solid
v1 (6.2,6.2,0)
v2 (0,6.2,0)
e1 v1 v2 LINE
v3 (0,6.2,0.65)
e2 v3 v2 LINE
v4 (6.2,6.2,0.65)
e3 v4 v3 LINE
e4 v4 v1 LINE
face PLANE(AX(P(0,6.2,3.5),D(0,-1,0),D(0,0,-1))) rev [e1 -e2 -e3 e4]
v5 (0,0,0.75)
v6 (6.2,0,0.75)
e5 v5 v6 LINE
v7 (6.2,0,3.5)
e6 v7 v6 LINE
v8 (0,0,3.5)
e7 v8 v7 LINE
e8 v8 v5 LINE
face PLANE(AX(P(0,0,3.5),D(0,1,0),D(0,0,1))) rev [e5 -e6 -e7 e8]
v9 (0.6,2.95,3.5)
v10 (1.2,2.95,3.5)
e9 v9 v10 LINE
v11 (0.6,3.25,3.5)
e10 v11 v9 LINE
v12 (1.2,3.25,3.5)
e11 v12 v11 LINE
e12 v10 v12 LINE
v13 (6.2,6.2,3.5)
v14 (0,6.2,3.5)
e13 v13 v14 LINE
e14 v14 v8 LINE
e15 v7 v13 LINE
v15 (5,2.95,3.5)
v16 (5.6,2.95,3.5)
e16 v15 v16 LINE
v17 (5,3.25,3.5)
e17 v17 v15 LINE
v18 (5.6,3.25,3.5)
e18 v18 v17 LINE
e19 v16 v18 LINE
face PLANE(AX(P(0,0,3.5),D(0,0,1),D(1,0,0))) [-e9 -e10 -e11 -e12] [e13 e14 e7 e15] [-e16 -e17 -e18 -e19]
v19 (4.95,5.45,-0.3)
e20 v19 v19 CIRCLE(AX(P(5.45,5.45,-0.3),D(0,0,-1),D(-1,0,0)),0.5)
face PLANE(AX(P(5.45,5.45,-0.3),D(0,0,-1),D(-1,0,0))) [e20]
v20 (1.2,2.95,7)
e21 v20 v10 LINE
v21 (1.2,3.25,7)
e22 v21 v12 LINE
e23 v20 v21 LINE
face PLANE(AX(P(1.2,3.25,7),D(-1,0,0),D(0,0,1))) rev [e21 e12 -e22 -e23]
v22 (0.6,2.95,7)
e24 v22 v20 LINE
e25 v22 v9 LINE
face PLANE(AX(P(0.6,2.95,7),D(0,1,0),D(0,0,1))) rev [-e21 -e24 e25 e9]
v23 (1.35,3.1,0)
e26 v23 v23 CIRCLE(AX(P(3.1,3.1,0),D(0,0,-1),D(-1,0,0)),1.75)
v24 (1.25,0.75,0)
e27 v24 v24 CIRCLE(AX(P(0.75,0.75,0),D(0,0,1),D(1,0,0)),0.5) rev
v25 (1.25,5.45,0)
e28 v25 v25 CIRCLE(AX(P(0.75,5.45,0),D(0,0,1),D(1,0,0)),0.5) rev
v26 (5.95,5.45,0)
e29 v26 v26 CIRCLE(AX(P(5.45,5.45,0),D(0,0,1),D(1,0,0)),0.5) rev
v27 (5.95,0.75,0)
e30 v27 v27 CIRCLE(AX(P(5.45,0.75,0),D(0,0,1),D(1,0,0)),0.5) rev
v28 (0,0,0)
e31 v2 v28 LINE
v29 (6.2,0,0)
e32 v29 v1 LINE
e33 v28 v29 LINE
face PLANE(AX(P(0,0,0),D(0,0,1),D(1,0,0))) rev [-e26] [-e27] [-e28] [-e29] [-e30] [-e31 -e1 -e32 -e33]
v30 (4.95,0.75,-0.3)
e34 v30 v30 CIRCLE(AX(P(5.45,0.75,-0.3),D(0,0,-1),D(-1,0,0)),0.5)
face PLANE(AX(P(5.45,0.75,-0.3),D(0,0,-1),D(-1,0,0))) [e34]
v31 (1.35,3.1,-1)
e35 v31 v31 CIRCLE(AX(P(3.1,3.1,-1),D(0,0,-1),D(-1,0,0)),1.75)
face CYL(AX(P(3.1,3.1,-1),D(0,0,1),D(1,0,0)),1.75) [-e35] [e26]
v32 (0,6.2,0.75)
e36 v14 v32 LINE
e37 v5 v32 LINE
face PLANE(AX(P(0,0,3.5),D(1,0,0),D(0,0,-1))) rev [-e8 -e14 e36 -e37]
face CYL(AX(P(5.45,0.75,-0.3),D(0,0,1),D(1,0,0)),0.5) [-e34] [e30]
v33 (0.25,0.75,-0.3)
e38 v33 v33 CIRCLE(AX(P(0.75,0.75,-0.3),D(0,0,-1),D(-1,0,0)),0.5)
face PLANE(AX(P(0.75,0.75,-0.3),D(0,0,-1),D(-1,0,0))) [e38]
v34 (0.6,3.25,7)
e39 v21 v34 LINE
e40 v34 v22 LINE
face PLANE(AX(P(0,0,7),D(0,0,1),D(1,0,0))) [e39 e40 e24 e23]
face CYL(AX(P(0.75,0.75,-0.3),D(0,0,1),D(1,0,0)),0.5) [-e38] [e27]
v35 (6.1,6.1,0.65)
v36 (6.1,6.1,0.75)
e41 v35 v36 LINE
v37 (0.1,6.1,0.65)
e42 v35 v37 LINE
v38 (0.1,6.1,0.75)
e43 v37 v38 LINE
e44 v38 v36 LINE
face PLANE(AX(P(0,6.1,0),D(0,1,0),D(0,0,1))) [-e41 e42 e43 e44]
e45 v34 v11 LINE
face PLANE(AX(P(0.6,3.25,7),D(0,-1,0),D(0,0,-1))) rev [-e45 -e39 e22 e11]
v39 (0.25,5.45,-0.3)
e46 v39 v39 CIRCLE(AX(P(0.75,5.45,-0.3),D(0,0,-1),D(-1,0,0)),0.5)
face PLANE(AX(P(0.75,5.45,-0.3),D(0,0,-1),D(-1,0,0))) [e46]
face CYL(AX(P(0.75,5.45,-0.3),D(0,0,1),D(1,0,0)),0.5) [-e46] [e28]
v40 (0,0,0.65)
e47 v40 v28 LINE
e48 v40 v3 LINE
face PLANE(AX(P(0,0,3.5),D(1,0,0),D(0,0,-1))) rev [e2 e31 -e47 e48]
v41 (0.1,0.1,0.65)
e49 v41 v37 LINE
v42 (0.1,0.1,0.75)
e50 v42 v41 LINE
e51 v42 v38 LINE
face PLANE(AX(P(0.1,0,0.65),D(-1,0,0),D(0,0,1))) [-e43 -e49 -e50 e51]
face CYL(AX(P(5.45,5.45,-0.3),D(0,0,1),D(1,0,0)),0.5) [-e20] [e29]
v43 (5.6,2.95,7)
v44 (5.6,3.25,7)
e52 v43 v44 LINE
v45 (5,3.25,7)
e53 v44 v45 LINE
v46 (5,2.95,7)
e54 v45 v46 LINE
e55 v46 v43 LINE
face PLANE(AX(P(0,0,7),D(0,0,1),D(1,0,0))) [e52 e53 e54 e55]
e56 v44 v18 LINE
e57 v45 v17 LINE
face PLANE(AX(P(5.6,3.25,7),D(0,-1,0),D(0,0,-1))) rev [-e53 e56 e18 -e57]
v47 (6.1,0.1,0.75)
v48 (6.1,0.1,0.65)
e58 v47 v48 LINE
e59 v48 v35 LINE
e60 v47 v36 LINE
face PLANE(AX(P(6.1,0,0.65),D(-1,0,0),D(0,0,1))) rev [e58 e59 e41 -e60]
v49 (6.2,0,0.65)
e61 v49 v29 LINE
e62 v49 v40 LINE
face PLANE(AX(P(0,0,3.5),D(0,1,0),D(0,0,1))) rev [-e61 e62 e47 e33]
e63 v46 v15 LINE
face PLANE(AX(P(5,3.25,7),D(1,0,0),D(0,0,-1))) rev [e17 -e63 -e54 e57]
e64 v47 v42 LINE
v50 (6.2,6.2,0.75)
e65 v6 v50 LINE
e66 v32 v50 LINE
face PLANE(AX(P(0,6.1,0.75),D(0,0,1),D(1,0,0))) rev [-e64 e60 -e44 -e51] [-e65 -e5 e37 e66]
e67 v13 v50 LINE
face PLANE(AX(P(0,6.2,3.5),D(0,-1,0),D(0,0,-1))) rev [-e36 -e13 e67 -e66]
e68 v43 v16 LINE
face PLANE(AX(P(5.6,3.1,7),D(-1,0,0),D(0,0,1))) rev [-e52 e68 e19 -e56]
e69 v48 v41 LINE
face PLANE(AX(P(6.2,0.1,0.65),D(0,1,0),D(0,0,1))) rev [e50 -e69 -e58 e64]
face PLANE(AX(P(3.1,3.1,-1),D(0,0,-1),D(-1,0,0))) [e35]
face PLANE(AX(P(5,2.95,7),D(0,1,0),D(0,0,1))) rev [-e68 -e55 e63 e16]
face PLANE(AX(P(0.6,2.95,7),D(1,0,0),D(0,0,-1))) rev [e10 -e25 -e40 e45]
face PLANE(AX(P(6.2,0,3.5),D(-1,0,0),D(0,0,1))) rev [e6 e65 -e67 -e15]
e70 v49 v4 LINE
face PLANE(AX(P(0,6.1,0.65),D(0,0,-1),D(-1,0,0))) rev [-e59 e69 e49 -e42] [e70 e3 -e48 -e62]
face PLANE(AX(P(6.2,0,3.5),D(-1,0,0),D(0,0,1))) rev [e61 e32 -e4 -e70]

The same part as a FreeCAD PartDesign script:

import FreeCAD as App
import Part
import Sketcher


def add_polygon(sketch, points):
    """Adds a closed chain of lines whose ends are joined by coincident constraints."""
    first, n = sketch.GeometryCount, len(points)
    for a, b in zip(points, points[1:] + points[:1]):
        sketch.addGeometry(Part.LineSegment(App.Vector(*a, 0), App.Vector(*b, 0)), False)
    for i in range(n):
        sketch.addConstraint(Sketcher.Constraint("Coincident", first + i, 2, first + (i + 1) % n, 1))

doc = App.newDocument("Part")
body = doc.addObject("PartDesign::Body", "Body")

sketch1 = doc.addObject("Sketcher::SketchObject", "Sketch")
body.addObject(sketch1)
sketch1.AttachmentSupport = (doc.XY_Plane, [""])
sketch1.MapMode = "FlatFace"
add_polygon(sketch1, [(0, 6.2), (0, 0), (6.2, 0), (6.2, 6.2)])
sketch1.addConstraint([
    Sketcher.Constraint("Vertical", 0),
    Sketcher.Constraint("Horizontal", 1),
    Sketcher.Constraint("Vertical", 2),
    Sketcher.Constraint("Horizontal", 3),
    Sketcher.Constraint("Coincident", 0, 2, -1, 1),
    Sketcher.Constraint("Equal", 3, 0),
    Sketcher.Constraint("DistanceX", 1, 1, 1, 2, 6.2),
])
pad1 = doc.addObject("PartDesign::Pad", "Pad")
body.addObject(pad1)
pad1.Profile = sketch1
pad1.Length = 3.5

sketch2 = doc.addObject("Sketcher::SketchObject", "Sketch001")
body.addObject(sketch2)
sketch2.AttachmentSupport = (doc.XZ_Plane, [""])
sketch2.MapMode = "FlatFace"
sketch2.AttachmentOffset = App.Placement(App.Vector(0, 0, -6.2), App.Rotation())
add_polygon(sketch2, [(0, 0.65), (0, 0.75), (6.2, 0.75), (6.2, 0.65)])
sketch2.addConstraint([
    Sketcher.Constraint("Vertical", 0),
    Sketcher.Constraint("Horizontal", 1),
    Sketcher.Constraint("Vertical", 2),
    Sketcher.Constraint("Horizontal", 3),
    Sketcher.Constraint("PointOnObject", 0, 2, -2),
    Sketcher.Constraint("DistanceX", 1, 1, 1, 2, 6.2),
    Sketcher.Constraint("DistanceY", 0, 1, 0, 2, 0.1),
    Sketcher.Constraint("DistanceY", -1, 1, 0, 2, 0.75),
])
pocket1 = doc.addObject("PartDesign::Pocket", "Pocket")
body.addObject(pocket1)
pocket1.Profile = sketch2
pocket1.Length = 0.1
pocket1.Reversed = True

sketch3 = doc.addObject("Sketcher::SketchObject", "Sketch002")
body.addObject(sketch3)
sketch3.AttachmentSupport = (doc.XZ_Plane, [""])
sketch3.MapMode = "FlatFace"
sketch3.AttachmentOffset = App.Placement(App.Vector(0, 0, -6.1), App.Rotation())
add_polygon(sketch3, [(0, 0.65), (0, 0.75), (0.1, 0.75), (0.1, 0.65)])
add_polygon(sketch3, [(6.1, 0.65), (6.1, 0.75), (6.2, 0.75), (6.2, 0.65)])
sketch3.addConstraint([
    Sketcher.Constraint("Vertical", 0),
    Sketcher.Constraint("Horizontal", 1),
    Sketcher.Constraint("Vertical", 2),
    Sketcher.Constraint("Horizontal", 3),
    Sketcher.Constraint("Vertical", 4),
    Sketcher.Constraint("Horizontal", 5),
    Sketcher.Constraint("Vertical", 6),
    Sketcher.Constraint("Horizontal", 7),
    Sketcher.Constraint("PointOnObject", 0, 2, -2),
    Sketcher.Constraint("Horizontal", 1, 2, 4, 2),
    Sketcher.Constraint("Horizontal", 3, 2, 6, 2),
    Sketcher.Constraint("Equal", 3, 5),
    Sketcher.Constraint("Equal", 7, 0),
    Sketcher.Constraint("DistanceX", 1, 1, 1, 2, 0.1),
    Sketcher.Constraint("DistanceX", 1, 2, 4, 2, 6.0),
    Sketcher.Constraint("DistanceY", -1, 1, 0, 2, 0.75),
])
pocket2 = doc.addObject("PartDesign::Pocket", "Pocket001")
body.addObject(pocket2)
pocket2.Profile = sketch3
pocket2.Type = "ThroughAll"
pocket2.Midplane = True

sketch4 = doc.addObject("Sketcher::SketchObject", "Sketch003")
body.addObject(sketch4)
sketch4.AttachmentSupport = (doc.YZ_Plane, [""])
sketch4.MapMode = "FlatFace"
sketch4.AttachmentOffset = App.Placement(App.Vector(0, 0, 0.1), App.Rotation())
add_polygon(sketch4, [(0.1, 0.65), (0, 0.65), (0, 0.75), (0.1, 0.75)])
sketch4.addConstraint([
    Sketcher.Constraint("Horizontal", 0),
    Sketcher.Constraint("Vertical", 1),
    Sketcher.Constraint("Horizontal", 2),
    Sketcher.Constraint("Vertical", 3),
    Sketcher.Constraint("PointOnObject", 0, 2, -2),
    Sketcher.Constraint("Equal", 2, 1),
    Sketcher.Constraint("DistanceX", 0, 2, 0, 1, 0.1),
    Sketcher.Constraint("DistanceY", -1, 1, 0, 2, 0.65),
])
pocket3 = doc.addObject("PartDesign::Pocket", "Pocket002")
body.addObject(pocket3)
pocket3.Profile = sketch4
pocket3.Type = "ThroughAll"
pocket3.Midplane = True

sketch5 = doc.addObject("Sketcher::SketchObject", "Sketch004")
body.addObject(sketch5)
sketch5.AttachmentSupport = (doc.XY_Plane, [""])
sketch5.MapMode = "FlatFace"
sketch5.addGeometry(Part.Circle(App.Vector(3.1, 3.1, 0), App.Vector(0, 0, 1), 1.75), False)
sketch5.addConstraint([
    Sketcher.Constraint("Diameter", 0, 3.5),
    Sketcher.Constraint("DistanceX", -1, 1, 0, 3, 3.1),
    Sketcher.Constraint("DistanceY", -1, 1, 0, 3, 3.1),
])
pad2 = doc.addObject("PartDesign::Pad", "Pad001")
body.addObject(pad2)
pad2.Profile = sketch5
pad2.Length = 1
pad2.Reversed = True

sketch6 = doc.addObject("Sketcher::SketchObject", "Sketch005")
body.addObject(sketch6)
sketch6.AttachmentSupport = (doc.XY_Plane, [""])
sketch6.MapMode = "FlatFace"
sketch6.addGeometry([
    Part.Circle(App.Vector(0.75, 0.75, 0), App.Vector(0, 0, 1), 0.5),
    Part.Circle(App.Vector(5.45, 0.75, 0), App.Vector(0, 0, 1), 0.5),
    Part.Circle(App.Vector(0.75, 5.45, 0), App.Vector(0, 0, 1), 0.5),
    Part.Circle(App.Vector(5.45, 5.45, 0), App.Vector(0, 0, 1), 0.5),
], False)
sketch6.addConstraint([
    Sketcher.Constraint("Equal", 0, 1),
    Sketcher.Constraint("Equal", 1, 2),
    Sketcher.Constraint("Equal", 2, 3),
    Sketcher.Constraint("Horizontal", 0, 3, 1, 3),
    Sketcher.Constraint("Horizontal", 2, 3, 3, 3),
    Sketcher.Constraint("Vertical", 0, 3, 2, 3),
    Sketcher.Constraint("Vertical", 1, 3, 3, 3),
    Sketcher.Constraint("Diameter", 0, 1.0),
    Sketcher.Constraint("DistanceX", 0, 3, 1, 3, 4.7),
    Sketcher.Constraint("DistanceY", 0, 3, 2, 3, 4.7),
    Sketcher.Constraint("DistanceX", -1, 1, 0, 3, 0.75),
    Sketcher.Constraint("DistanceY", -1, 1, 0, 3, 0.75),
])
pad3 = doc.addObject("PartDesign::Pad", "Pad002")
body.addObject(pad3)
pad3.Profile = sketch6
pad3.Length = 0.3
pad3.Reversed = True

sketch7 = doc.addObject("Sketcher::SketchObject", "Sketch006")
body.addObject(sketch7)
sketch7.AttachmentSupport = (doc.XY_Plane, [""])
sketch7.MapMode = "FlatFace"
sketch7.AttachmentOffset = App.Placement(App.Vector(0, 0, 3.5), App.Rotation())
add_polygon(sketch7, [(5.6, 2.95), (5.6, 3.25), (5, 3.25), (5, 2.95)])
add_polygon(sketch7, [(0.6, 3.25), (0.6, 2.95), (1.2, 2.95), (1.2, 3.25)])
sketch7.addConstraint([
    Sketcher.Constraint("Vertical", 0),
    Sketcher.Constraint("Horizontal", 1),
    Sketcher.Constraint("Vertical", 2),
    Sketcher.Constraint("Horizontal", 3),
    Sketcher.Constraint("Vertical", 4),
    Sketcher.Constraint("Horizontal", 5),
    Sketcher.Constraint("Vertical", 6),
    Sketcher.Constraint("Horizontal", 7),
    Sketcher.Constraint("Horizontal", 3, 2, 4, 2),
    Sketcher.Constraint("Horizontal", 1, 2, 6, 2),
    Sketcher.Constraint("Equal", 3, 5),
    Sketcher.Constraint("DistanceX", 1, 2, 1, 1, 0.6),
    Sketcher.Constraint("DistanceY", 0, 1, 0, 2, 0.3),
    Sketcher.Constraint("DistanceX", -1, 1, 1, 2, 5.0),
    Sketcher.Constraint("DistanceX", 4, 2, 3, 2, 5.0),
    Sketcher.Constraint("DistanceY", -1, 1, 0, 2, 3.25),
])
pad4 = doc.addObject("PartDesign::Pad", "Pad003")
body.addObject(pad4)
pad4.Profile = sketch7
pad4.Length = 3.5

doc.recompute()
